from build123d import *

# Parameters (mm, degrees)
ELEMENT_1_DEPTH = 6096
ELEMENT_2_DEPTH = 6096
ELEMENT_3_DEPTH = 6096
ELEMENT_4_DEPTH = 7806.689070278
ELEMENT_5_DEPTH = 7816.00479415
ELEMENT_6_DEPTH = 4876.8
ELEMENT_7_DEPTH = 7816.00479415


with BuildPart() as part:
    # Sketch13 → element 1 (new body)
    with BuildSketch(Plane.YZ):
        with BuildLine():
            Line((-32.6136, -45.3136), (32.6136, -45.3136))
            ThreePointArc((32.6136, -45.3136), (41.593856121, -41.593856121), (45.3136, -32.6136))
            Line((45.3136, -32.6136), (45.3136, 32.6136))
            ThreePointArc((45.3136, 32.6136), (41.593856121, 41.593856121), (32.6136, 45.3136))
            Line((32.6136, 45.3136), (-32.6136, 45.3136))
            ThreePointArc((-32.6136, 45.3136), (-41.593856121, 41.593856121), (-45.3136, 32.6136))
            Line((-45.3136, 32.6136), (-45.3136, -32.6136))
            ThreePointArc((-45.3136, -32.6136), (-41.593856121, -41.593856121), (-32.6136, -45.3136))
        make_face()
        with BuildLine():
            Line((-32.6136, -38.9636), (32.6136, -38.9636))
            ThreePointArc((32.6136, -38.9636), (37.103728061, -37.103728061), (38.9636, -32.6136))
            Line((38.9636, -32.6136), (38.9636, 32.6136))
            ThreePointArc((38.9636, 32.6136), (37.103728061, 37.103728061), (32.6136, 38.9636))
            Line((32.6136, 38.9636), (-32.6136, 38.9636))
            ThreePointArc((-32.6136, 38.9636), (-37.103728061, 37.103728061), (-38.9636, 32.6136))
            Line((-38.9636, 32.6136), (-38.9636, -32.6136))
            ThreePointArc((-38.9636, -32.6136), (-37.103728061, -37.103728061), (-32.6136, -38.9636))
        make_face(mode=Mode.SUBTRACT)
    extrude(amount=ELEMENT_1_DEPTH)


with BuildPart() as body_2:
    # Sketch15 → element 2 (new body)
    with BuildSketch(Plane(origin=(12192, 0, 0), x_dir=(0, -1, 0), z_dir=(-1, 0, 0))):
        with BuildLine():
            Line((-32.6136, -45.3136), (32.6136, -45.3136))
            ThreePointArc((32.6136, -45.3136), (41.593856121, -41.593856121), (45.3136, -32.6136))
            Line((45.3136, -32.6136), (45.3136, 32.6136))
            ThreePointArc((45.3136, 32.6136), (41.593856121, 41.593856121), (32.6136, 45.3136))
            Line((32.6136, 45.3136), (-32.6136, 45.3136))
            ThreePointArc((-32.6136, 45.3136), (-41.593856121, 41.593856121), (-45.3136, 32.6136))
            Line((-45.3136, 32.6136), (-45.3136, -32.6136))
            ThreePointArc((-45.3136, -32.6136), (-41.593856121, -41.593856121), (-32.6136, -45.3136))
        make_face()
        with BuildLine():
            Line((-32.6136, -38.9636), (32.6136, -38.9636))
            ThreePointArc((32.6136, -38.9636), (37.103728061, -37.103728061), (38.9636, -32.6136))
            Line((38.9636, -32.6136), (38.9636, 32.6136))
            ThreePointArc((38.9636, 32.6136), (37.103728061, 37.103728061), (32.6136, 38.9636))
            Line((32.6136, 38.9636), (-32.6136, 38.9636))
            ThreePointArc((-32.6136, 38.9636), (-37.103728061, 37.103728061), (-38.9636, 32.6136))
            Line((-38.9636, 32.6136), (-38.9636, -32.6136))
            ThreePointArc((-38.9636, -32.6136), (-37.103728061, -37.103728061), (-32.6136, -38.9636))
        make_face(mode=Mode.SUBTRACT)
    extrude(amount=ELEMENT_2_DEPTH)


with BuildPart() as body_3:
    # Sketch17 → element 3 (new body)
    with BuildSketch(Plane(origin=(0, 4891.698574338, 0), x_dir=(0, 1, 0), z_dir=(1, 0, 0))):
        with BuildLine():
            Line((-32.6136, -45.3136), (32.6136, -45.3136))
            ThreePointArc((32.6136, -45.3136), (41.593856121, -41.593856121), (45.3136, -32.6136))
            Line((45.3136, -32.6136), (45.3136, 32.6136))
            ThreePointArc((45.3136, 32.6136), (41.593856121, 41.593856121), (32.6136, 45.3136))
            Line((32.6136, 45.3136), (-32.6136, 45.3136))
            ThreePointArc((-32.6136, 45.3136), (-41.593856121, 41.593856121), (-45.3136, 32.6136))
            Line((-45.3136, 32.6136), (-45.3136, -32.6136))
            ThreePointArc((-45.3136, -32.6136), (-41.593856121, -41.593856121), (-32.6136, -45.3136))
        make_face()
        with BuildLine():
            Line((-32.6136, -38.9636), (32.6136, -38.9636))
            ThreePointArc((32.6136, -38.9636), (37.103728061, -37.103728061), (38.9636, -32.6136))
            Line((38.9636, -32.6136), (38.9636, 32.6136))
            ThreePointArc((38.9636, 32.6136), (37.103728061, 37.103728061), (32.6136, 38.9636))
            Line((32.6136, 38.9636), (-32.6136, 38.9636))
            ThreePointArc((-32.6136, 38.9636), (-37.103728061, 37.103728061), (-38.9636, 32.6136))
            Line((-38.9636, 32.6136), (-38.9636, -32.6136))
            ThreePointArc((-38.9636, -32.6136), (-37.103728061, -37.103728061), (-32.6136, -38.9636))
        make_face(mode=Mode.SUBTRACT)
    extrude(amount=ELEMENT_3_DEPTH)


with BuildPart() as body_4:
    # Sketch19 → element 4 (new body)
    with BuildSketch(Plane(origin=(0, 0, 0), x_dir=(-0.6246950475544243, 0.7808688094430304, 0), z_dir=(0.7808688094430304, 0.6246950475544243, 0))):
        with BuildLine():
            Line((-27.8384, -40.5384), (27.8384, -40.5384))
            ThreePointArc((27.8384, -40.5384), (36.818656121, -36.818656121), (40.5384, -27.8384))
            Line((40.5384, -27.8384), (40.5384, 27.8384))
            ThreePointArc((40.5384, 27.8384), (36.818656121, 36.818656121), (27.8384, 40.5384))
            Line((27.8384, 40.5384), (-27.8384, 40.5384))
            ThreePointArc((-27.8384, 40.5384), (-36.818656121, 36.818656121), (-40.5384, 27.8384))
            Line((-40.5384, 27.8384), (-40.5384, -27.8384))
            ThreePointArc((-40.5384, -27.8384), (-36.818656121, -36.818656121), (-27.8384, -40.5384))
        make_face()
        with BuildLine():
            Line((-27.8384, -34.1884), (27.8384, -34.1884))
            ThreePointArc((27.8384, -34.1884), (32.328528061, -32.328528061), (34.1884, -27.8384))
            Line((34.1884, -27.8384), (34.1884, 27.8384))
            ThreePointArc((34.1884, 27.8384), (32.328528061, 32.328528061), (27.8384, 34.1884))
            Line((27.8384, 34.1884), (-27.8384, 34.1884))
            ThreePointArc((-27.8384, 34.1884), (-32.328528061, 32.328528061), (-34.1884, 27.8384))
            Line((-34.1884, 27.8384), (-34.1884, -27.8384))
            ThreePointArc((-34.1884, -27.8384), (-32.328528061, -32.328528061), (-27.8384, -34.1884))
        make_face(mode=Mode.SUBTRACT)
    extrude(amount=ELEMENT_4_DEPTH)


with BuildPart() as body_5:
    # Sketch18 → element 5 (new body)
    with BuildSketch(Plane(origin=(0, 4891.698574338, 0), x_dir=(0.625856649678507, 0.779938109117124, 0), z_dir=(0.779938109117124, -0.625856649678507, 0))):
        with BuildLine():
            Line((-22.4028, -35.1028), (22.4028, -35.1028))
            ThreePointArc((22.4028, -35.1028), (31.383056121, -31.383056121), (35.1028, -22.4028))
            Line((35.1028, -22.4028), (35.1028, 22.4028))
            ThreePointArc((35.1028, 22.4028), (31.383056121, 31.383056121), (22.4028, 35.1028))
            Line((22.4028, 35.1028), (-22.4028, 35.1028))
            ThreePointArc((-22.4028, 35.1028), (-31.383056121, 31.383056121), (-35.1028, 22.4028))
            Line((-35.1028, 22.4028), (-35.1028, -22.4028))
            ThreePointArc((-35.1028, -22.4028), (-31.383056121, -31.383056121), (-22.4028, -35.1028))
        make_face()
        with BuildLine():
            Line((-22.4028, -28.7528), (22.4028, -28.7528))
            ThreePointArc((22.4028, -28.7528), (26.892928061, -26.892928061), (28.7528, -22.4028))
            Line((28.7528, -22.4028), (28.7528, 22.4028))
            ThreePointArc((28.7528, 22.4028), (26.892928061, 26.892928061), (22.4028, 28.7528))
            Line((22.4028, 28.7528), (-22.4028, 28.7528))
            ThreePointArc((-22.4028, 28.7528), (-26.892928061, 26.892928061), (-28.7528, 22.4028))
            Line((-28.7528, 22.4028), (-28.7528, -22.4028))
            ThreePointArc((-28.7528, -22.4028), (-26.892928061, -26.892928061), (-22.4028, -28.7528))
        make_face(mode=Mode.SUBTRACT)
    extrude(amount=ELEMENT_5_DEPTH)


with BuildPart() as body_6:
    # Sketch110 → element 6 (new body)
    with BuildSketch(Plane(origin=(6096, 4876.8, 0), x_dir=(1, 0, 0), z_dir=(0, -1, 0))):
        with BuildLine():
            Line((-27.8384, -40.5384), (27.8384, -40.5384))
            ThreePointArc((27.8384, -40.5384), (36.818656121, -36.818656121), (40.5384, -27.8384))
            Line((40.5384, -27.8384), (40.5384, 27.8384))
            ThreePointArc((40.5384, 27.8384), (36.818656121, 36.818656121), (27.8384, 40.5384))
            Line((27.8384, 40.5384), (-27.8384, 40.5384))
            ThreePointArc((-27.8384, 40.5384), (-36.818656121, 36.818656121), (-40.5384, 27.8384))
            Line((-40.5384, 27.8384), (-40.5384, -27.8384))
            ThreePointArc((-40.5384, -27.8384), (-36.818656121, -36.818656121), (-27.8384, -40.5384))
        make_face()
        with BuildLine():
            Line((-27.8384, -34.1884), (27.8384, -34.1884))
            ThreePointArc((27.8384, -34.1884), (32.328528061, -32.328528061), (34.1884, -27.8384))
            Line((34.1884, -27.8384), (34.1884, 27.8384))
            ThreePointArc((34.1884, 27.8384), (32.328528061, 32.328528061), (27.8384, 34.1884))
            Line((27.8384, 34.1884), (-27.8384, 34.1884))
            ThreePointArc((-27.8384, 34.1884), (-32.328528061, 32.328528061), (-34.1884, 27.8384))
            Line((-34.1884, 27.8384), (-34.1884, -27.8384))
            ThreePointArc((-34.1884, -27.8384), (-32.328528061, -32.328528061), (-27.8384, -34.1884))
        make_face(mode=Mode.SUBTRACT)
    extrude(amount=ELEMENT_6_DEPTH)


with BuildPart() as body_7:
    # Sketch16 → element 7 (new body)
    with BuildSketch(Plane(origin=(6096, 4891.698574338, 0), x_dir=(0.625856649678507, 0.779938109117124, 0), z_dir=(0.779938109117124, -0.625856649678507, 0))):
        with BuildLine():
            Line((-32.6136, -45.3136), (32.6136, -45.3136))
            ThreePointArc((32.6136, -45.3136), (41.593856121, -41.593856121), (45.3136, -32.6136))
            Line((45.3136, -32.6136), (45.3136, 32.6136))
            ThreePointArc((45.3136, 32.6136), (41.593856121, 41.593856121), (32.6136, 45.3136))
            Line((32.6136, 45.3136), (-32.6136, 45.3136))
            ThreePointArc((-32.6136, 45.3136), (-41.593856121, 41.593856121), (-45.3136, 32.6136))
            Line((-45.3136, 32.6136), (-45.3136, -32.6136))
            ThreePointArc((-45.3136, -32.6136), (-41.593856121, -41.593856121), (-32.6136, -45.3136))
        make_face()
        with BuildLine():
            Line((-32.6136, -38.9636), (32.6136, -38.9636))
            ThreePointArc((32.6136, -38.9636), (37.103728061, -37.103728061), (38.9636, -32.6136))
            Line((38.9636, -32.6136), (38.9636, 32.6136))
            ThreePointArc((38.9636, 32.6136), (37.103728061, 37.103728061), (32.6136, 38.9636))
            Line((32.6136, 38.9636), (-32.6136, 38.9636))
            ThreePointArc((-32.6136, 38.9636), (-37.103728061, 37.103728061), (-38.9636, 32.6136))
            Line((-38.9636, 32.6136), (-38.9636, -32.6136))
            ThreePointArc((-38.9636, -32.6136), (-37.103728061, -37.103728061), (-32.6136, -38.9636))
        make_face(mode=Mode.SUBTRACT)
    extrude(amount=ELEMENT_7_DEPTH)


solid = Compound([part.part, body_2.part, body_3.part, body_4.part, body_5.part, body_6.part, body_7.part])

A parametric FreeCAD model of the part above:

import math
import FreeCAD as App
import Part
import Sketcher

V = App.Vector
Q = App.Units.Quantity

doc = App.newDocument("Part")
body = doc.addObject("PartDesign::Body", "Body")

sketch1 = body.newObject("Sketcher::SketchObject", "Sketch")
sketch1.AttachmentSupport = (doc.getObject("YZ_Plane"), [""])
sketch1.MapMode = "FlatFace"
sketch1.addGeometry(Part.LineSegment(V(-33, -45, 0), V(33, -45, 0)), False)
sketch1.addGeometry(Part.ArcOfCircle(Part.Circle(V(33, -33, 0), V(0, 0, 1), 13), math.radians(-90), math.radians(0)), False)
sketch1.addGeometry(Part.LineSegment(V(45, -33, 0), V(45, 33, 0)), False)
sketch1.addGeometry(Part.ArcOfCircle(Part.Circle(V(33, 33, 0), V(0, 0, 1), 13), math.radians(0), math.radians(90)), False)
sketch1.addGeometry(Part.LineSegment(V(33, 45, 0), V(-33, 45, 0)), False)
sketch1.addGeometry(Part.ArcOfCircle(Part.Circle(V(-33, 33, 0), V(0, 0, 1), 13), math.radians(90), math.radians(180)), False)
sketch1.addGeometry(Part.LineSegment(V(-45, 33, 0), V(-45, -33, 0)), False)
sketch1.addGeometry(Part.ArcOfCircle(Part.Circle(V(-33, -33, 0), V(0, 0, 1), 13), math.radians(180), math.radians(270)), False)
sketch1.addGeometry(Part.LineSegment(V(33, -39, 0), V(-33, -39, 0)), False)
sketch1.addGeometry(Part.ArcOfCircle(Part.Circle(V(-33, -33, 0), V(0, 0, 1), 6), math.radians(180), math.radians(270)), False)
sketch1.addGeometry(Part.LineSegment(V(-39, -33, 0), V(-39, 33, 0)), False)
sketch1.addGeometry(Part.ArcOfCircle(Part.Circle(V(-33, 33, 0), V(0, 0, 1), 6), math.radians(90), math.radians(180)), False)
sketch1.addGeometry(Part.LineSegment(V(-33, 39, 0), V(33, 39, 0)), False)
sketch1.addGeometry(Part.ArcOfCircle(Part.Circle(V(33, 33, 0), V(0, 0, 1), 6), math.radians(0), math.radians(90)), False)
sketch1.addGeometry(Part.LineSegment(V(39, 33, 0), V(39, -33, 0)), False)
sketch1.addGeometry(Part.ArcOfCircle(Part.Circle(V(33, -33, 0), V(0, 0, 1), 6), math.radians(-90), math.radians(0)), False)
sketch1.addConstraint(Sketcher.Constraint("Tangent", 0, 2, 1, 1))
sketch1.addConstraint(Sketcher.Constraint("Tangent", 1, 2, 2, 1))
sketch1.addConstraint(Sketcher.Constraint("Tangent", 2, 2, 3, 1))
sketch1.addConstraint(Sketcher.Constraint("Tangent", 3, 2, 4, 1))
sketch1.addConstraint(Sketcher.Constraint("Tangent", 4, 2, 5, 1))
sketch1.addConstraint(Sketcher.Constraint("Tangent", 5, 2, 6, 1))
sketch1.addConstraint(Sketcher.Constraint("Tangent", 6, 2, 7, 1))
sketch1.addConstraint(Sketcher.Constraint("Tangent", 7, 2, 0, 1))
sketch1.addConstraint(Sketcher.Constraint("Tangent", 8, 2, 9, 2))
sketch1.addConstraint(Sketcher.Constraint("Tangent", 9, 1, 10, 1))
sketch1.addConstraint(Sketcher.Constraint("Tangent", 10, 2, 11, 2))
sketch1.addConstraint(Sketcher.Constraint("Tangent", 11, 1, 12, 1))
sketch1.addConstraint(Sketcher.Constraint("Tangent", 12, 2, 13, 2))
sketch1.addConstraint(Sketcher.Constraint("Tangent", 13, 1, 14, 1))
sketch1.addConstraint(Sketcher.Constraint("Tangent", 14, 2, 15, 2))
sketch1.addConstraint(Sketcher.Constraint("Tangent", 15, 1, 8, 1))
sketch1.addConstraint(Sketcher.Constraint("Horizontal", 0))
sketch1.addConstraint(Sketcher.Constraint("Vertical", 2))
sketch1.addConstraint(Sketcher.Constraint("Horizontal", 4))
sketch1.addConstraint(Sketcher.Constraint("Vertical", 6))
sketch1.addConstraint(Sketcher.Constraint("Horizontal", 8))
sketch1.addConstraint(Sketcher.Constraint("Vertical", 10))
sketch1.addConstraint(Sketcher.Constraint("Horizontal", 12))
sketch1.addConstraint(Sketcher.Constraint("Vertical", 14))
sketch1.addConstraint(Sketcher.Constraint("Coincident", 9, 3, 7, 3))
sketch1.addConstraint(Sketcher.Constraint("Coincident", 11, 3, 5, 3))
sketch1.addConstraint(Sketcher.Constraint("Coincident", 13, 3, 3, 3))
sketch1.addConstraint(Sketcher.Constraint("Equal", 1, 3))
sketch1.addConstraint(Sketcher.Constraint("Equal", 3, 5))
sketch1.addConstraint(Sketcher.Constraint("Equal", 5, 7))
sketch1.addConstraint(Sketcher.Constraint("Equal", 13, 15))
sketch1.addConstraint(Sketcher.Constraint("Symmetric", 1, 3, 5, 3, -1, 1))
sketch1.addConstraint(Sketcher.Constraint("Equal", 12, 2))
sketch1.addConstraint(Sketcher.Constraint("Radius", 1, Q("0.5 in")))
sketch1.addConstraint(Sketcher.Constraint("Radius", 9, Q("0.25 in")))
sketch1.addConstraint(Sketcher.Constraint("DistanceX", 0, 1, 0, 2, Q("2.568 in")))
pad1 = body.newObject("PartDesign::Pad", "Pad")
pad1.Profile = sketch1
pad1.Length = Q("240 in")
body2 = doc.addObject("PartDesign::Body", "Body001")

sketch2 = body2.newObject("Sketcher::SketchObject", "Sketch001")
sketch2.AttachmentSupport = (doc.getObject("YZ_Plane001"), [""])
sketch2.MapMode = "FlatFace"
sketch2.AttachmentOffset = App.Placement(V(0, 0, 480 * 25.4), App.Rotation())
sketch2.addGeometry(Part.LineSegment(V(33, -45, 0), V(-33, -45, 0)), False)
sketch2.addGeometry(Part.ArcOfCircle(Part.Circle(V(-33, -33, 0), V(0, 0, 1), 13), math.radians(180), math.radians(270)), False)
sketch2.addGeometry(Part.LineSegment(V(-45, -33, 0), V(-45, 33, 0)), False)
sketch2.addGeometry(Part.ArcOfCircle(Part.Circle(V(-33, 33, 0), V(0, 0, 1), 13), math.radians(90), math.radians(180)), False)
sketch2.addGeometry(Part.LineSegment(V(-33, 45, 0), V(33, 45, 0)), False)
sketch2.addGeometry(Part.ArcOfCircle(Part.Circle(V(33, 33, 0), V(0, 0, 1), 13), math.radians(0), math.radians(90)), False)
sketch2.addGeometry(Part.LineSegment(V(45, 33, 0), V(45, -33, 0)), False)
sketch2.addGeometry(Part.ArcOfCircle(Part.Circle(V(33, -33, 0), V(0, 0, 1), 13), math.radians(-90), math.radians(0)), False)
sketch2.addGeometry(Part.LineSegment(V(-33, -39, 0), V(33, -39, 0)), False)
sketch2.addGeometry(Part.ArcOfCircle(Part.Circle(V(33, -33, 0), V(0, 0, 1), 6), math.radians(-90), math.radians(0)), False)
sketch2.addGeometry(Part.LineSegment(V(39, -33, 0), V(39, 33, 0)), False)
sketch2.addGeometry(Part.ArcOfCircle(Part.Circle(V(33, 33, 0), V(0, 0, 1), 6), math.radians(0), math.radians(90)), False)
sketch2.addGeometry(Part.LineSegment(V(33, 39, 0), V(-33, 39, 0)), False)
sketch2.addGeometry(Part.ArcOfCircle(Part.Circle(V(-33, 33, 0), V(0, 0, 1), 6), math.radians(90), math.radians(180)), False)
sketch2.addGeometry(Part.LineSegment(V(-39, 33, 0), V(-39, -33, 0)), False)
sketch2.addGeometry(Part.ArcOfCircle(Part.Circle(V(-33, -33, 0), V(0, 0, 1), 6), math.radians(180), math.radians(270)), False)
sketch2.addConstraint(Sketcher.Constraint("Tangent", 0, 2, 1, 2))
sketch2.addConstraint(Sketcher.Constraint("Tangent", 1, 1, 2, 1))
sketch2.addConstraint(Sketcher.Constraint("Tangent", 2, 2, 3, 2))
sketch2.addConstraint(Sketcher.Constraint("Tangent", 3, 1, 4, 1))
sketch2.addConstraint(Sketcher.Constraint("Tangent", 4, 2, 5, 2))
sketch2.addConstraint(Sketcher.Constraint("Tangent", 5, 1, 6, 1))
sketch2.addConstraint(Sketcher.Constraint("Tangent", 6, 2, 7, 2))
sketch2.addConstraint(Sketcher.Constraint("Tangent", 7, 1, 0, 1))
sketch2.addConstraint(Sketcher.Constraint("Tangent", 8, 2, 9, 1))
sketch2.addConstraint(Sketcher.Constraint("Tangent", 9, 2, 10, 1))
sketch2.addConstraint(Sketcher.Constraint("Tangent", 10, 2, 11, 1))
sketch2.addConstraint(Sketcher.Constraint("Tangent", 11, 2, 12, 1))
sketch2.addConstraint(Sketcher.Constraint("Tangent", 12, 2, 13, 1))
sketch2.addConstraint(Sketcher.Constraint("Tangent", 13, 2, 14, 1))
sketch2.addConstraint(Sketcher.Constraint("Tangent", 14, 2, 15, 1))
sketch2.addConstraint(Sketcher.Constraint("Tangent", 15, 2, 8, 1))
sketch2.addConstraint(Sketcher.Constraint("Horizontal", 0))
sketch2.addConstraint(Sketcher.Constraint("Vertical", 2))
sketch2.addConstraint(Sketcher.Constraint("Horizontal", 4))
sketch2.addConstraint(Sketcher.Constraint("Vertical", 6))
sketch2.addConstraint(Sketcher.Constraint("Horizontal", 8))
sketch2.addConstraint(Sketcher.Constraint("Vertical", 10))
sketch2.addConstraint(Sketcher.Constraint("Horizontal", 12))
sketch2.addConstraint(Sketcher.Constraint("Vertical", 14))
sketch2.addConstraint(Sketcher.Constraint("Coincident", 9, 3, 7, 3))
sketch2.addConstraint(Sketcher.Constraint("Coincident", 11, 3, 5, 3))
sketch2.addConstraint(Sketcher.Constraint("Coincident", 13, 3, 3, 3))
sketch2.addConstraint(Sketcher.Constraint("Equal", 1, 3))
sketch2.addConstraint(Sketcher.Constraint("Equal", 3, 5))
sketch2.addConstraint(Sketcher.Constraint("Equal", 5, 7))
sketch2.addConstraint(Sketcher.Constraint("Equal", 13, 15))
sketch2.addConstraint(Sketcher.Constraint("Symmetric", 1, 3, 5, 3, -1, 1))
sketch2.addConstraint(Sketcher.Constraint("Equal", 12, 2))
sketch2.addConstraint(Sketcher.Constraint("Radius", 1, Q("0.5 in")))
sketch2.addConstraint(Sketcher.Constraint("Radius", 9, Q("0.25 in")))
sketch2.addConstraint(Sketcher.Constraint("DistanceX", 0, 2, 0, 1, Q("2.568 in")))
pad2 = body2.newObject("PartDesign::Pad", "Pad001")
pad2.Profile = sketch2
pad2.Length = Q("240 in")
pad2.Reversed = True
body3 = doc.addObject("PartDesign::Body", "Body002")

sketch3 = body3.newObject("Sketcher::SketchObject", "Sketch002")
sketch3.AttachmentSupport = (doc.getObject("YZ_Plane002"), [""])
sketch3.MapMode = "FlatFace"
sketch3.addGeometry(Part.LineSegment(V(4859, -45, 0), V(4924, -45, 0)), False)
sketch3.addGeometry(Part.ArcOfCircle(Part.Circle(V(4924, -33, 0), V(0, 0, 1), 13), math.radians(-90), math.radians(0)), False)
sketch3.addGeometry(Part.LineSegment(V(4937, -33, 0), V(4937, 33, 0)), False)
sketch3.addGeometry(Part.ArcOfCircle(Part.Circle(V(4924, 33, 0), V(0, 0, 1), 13), math.radians(0), math.radians(90)), False)
sketch3.addGeometry(Part.LineSegment(V(4924, 45, 0), V(4859, 45, 0)), False)
sketch3.addGeometry(Part.ArcOfCircle(Part.Circle(V(4859, 33, 0), V(0, 0, 1), 13), math.radians(90), math.radians(180)), False)
sketch3.addGeometry(Part.LineSegment(V(4846, 33, 0), V(4846, -33, 0)), False)
sketch3.addGeometry(Part.ArcOfCircle(Part.Circle(V(4859, -33, 0), V(0, 0, 1), 13), math.radians(180), math.radians(270)), False)
sketch3.addGeometry(Part.LineSegment(V(4924, -39, 0), V(4859, -39, 0)), False)
sketch3.addGeometry(Part.ArcOfCircle(Part.Circle(V(4859, -33, 0), V(0, 0, 1), 6), math.radians(180), math.radians(270)), False)
sketch3.addGeometry(Part.LineSegment(V(4853, -33, 0), V(4853, 33, 0)), False)
sketch3.addGeometry(Part.ArcOfCircle(Part.Circle(V(4859, 33, 0), V(0, 0, 1), 6), math.radians(90), math.radians(180)), False)
sketch3.addGeometry(Part.LineSegment(V(4859, 39, 0), V(4924, 39, 0)), False)
sketch3.addGeometry(Part.ArcOfCircle(Part.Circle(V(4924, 33, 0), V(0, 0, 1), 6), math.radians(0), math.radians(90)), False)
sketch3.addGeometry(Part.LineSegment(V(4931, 33, 0), V(4931, -33, 0)), False)
sketch3.addGeometry(Part.ArcOfCircle(Part.Circle(V(4924, -33, 0), V(0, 0, 1), 6), math.radians(-90), math.radians(0)), False)
sketch3.addConstraint(Sketcher.Constraint("Tangent", 0, 2, 1, 1))
sketch3.addConstraint(Sketcher.Constraint("Tangent", 1, 2, 2, 1))
sketch3.addConstraint(Sketcher.Constraint("Tangent", 2, 2, 3, 1))
sketch3.addConstraint(Sketcher.Constraint("Tangent", 3, 2, 4, 1))
sketch3.addConstraint(Sketcher.Constraint("Tangent", 4, 2, 5, 1))
sketch3.addConstraint(Sketcher.Constraint("Tangent", 5, 2, 6, 1))
sketch3.addConstraint(Sketcher.Constraint("Tangent", 6, 2, 7, 1))
sketch3.addConstraint(Sketcher.Constraint("Tangent", 7, 2, 0, 1))
sketch3.addConstraint(Sketcher.Constraint("Tangent", 8, 2, 9, 2))
sketch3.addConstraint(Sketcher.Constraint("Tangent", 9, 1, 10, 1))
sketch3.addConstraint(Sketcher.Constraint("Tangent", 10, 2, 11, 2))
sketch3.addConstraint(Sketcher.Constraint("Tangent", 11, 1, 12, 1))
sketch3.addConstraint(Sketcher.Constraint("Tangent", 12, 2, 13, 2))
sketch3.addConstraint(Sketcher.Constraint("Tangent", 13, 1, 14, 1))
sketch3.addConstraint(Sketcher.Constraint("Tangent", 14, 2, 15, 2))
sketch3.addConstraint(Sketcher.Constraint("Tangent", 15, 1, 8, 1))
sketch3.addConstraint(Sketcher.Constraint("Horizontal", 0))
sketch3.addConstraint(Sketcher.Constraint("Vertical", 2))
sketch3.addConstraint(Sketcher.Constraint("Horizontal", 4))
sketch3.addConstraint(Sketcher.Constraint("Vertical", 6))
sketch3.addConstraint(Sketcher.Constraint("Horizontal", 8))
sketch3.addConstraint(Sketcher.Constraint("Vertical", 10))
sketch3.addConstraint(Sketcher.Constraint("Horizontal", 12))
sketch3.addConstraint(Sketcher.Constraint("Vertical", 14))
sketch3.addConstraint(Sketcher.Constraint("Coincident", 9, 3, 7, 3))
sketch3.addConstraint(Sketcher.Constraint("Coincident", 11, 3, 5, 3))
sketch3.addConstraint(Sketcher.Constraint("Coincident", 13, 3, 3, 3))
sketch3.addConstraint(Sketcher.Constraint("Equal", 1, 3))
sketch3.addConstraint(Sketcher.Constraint("Equal", 3, 5))
sketch3.addConstraint(Sketcher.Constraint("Equal", 5, 7))
sketch3.addConstraint(Sketcher.Constraint("Equal", 13, 15))
sketch3.addConstraint(Sketcher.Constraint("Equal", 12, 2))
sketch3.addConstraint(Sketcher.Constraint("Radius", 1, Q("0.5 in")))
sketch3.addConstraint(Sketcher.Constraint("Radius", 9, Q("0.25 in")))
sketch3.addConstraint(Sketcher.Constraint("DistanceX", 0, 1, 0, 2, Q("2.568 in")))
sketch3.addConstraint(Sketcher.Constraint("DistanceY", 1, 3, -1, 1, Q("1.284 in")))
sketch3.addConstraint(Sketcher.Constraint("DistanceX", -1, 1, 1, 3, 4924.312174))
pad3 = body3.newObject("PartDesign::Pad", "Pad002")
pad3.Profile = sketch3
pad3.Length = Q("240 in")
body4 = doc.addObject("PartDesign::Body", "Body003")

sketch4 = body4.newObject("Sketcher::SketchObject", "Sketch003")
sketch4.Placement = App.Placement(V(0, 0, 0), App.Rotation(V(-0.624695048, 0.780868809, 0), V(0, 0, 1), V(0.780868809, 0.624695048, 0), "ZXY"))
sketch4.addGeometry(Part.LineSegment(V(-28, -41, 0), V(28, -41, 0)), False)
sketch4.addGeometry(Part.ArcOfCircle(Part.Circle(V(28, -28, 0), V(0, 0, 1), 13), math.radians(-90), math.radians(0)), False)
sketch4.addGeometry(Part.LineSegment(V(41, -28, 0), V(41, 28, 0)), False)
sketch4.addGeometry(Part.ArcOfCircle(Part.Circle(V(28, 28, 0), V(0, 0, 1), 13), math.radians(0), math.radians(90)), False)
sketch4.addGeometry(Part.LineSegment(V(28, 41, 0), V(-28, 41, 0)), False)
sketch4.addGeometry(Part.ArcOfCircle(Part.Circle(V(-28, 28, 0), V(0, 0, 1), 13), math.radians(90), math.radians(180)), False)
sketch4.addGeometry(Part.LineSegment(V(-41, 28, 0), V(-41, -28, 0)), False)
sketch4.addGeometry(Part.ArcOfCircle(Part.Circle(V(-28, -28, 0), V(0, 0, 1), 13), math.radians(180), math.radians(270)), False)
sketch4.addGeometry(Part.LineSegment(V(28, -34, 0), V(-28, -34, 0)), False)
sketch4.addGeometry(Part.ArcOfCircle(Part.Circle(V(-28, -28, 0), V(0, 0, 1), 6), math.radians(180), math.radians(270)), False)
sketch4.addGeometry(Part.LineSegment(V(-34, -28, 0), V(-34, 28, 0)), False)
sketch4.addGeometry(Part.ArcOfCircle(Part.Circle(V(-28, 28, 0), V(0, 0, 1), 6), math.radians(90), math.radians(180)), False)
sketch4.addGeometry(Part.LineSegment(V(-28, 34, 0), V(28, 34, 0)), False)
sketch4.addGeometry(Part.ArcOfCircle(Part.Circle(V(28, 28, 0), V(0, 0, 1), 6), math.radians(0), math.radians(90)), False)
sketch4.addGeometry(Part.LineSegment(V(34, 28, 0), V(34, -28, 0)), False)
sketch4.addGeometry(Part.ArcOfCircle(Part.Circle(V(28, -28, 0), V(0, 0, 1), 6), math.radians(-90), math.radians(0)), False)
sketch4.addConstraint(Sketcher.Constraint("Tangent", 0, 2, 1, 1))
sketch4.addConstraint(Sketcher.Constraint("Tangent", 1, 2, 2, 1))
sketch4.addConstraint(Sketcher.Constraint("Tangent", 2, 2, 3, 1))
sketch4.addConstraint(Sketcher.Constraint("Tangent", 3, 2, 4, 1))
sketch4.addConstraint(Sketcher.Constraint("Tangent", 4, 2, 5, 1))
sketch4.addConstraint(Sketcher.Constraint("Tangent", 5, 2, 6, 1))
sketch4.addConstraint(Sketcher.Constraint("Tangent", 6, 2, 7, 1))
sketch4.addConstraint(Sketcher.Constraint("Tangent", 7, 2, 0, 1))
sketch4.addConstraint(Sketcher.Constraint("Tangent", 8, 2, 9, 2))
sketch4.addConstraint(Sketcher.Constraint("Tangent", 9, 1, 10, 1))
sketch4.addConstraint(Sketcher.Constraint("Tangent", 10, 2, 11, 2))
sketch4.addConstraint(Sketcher.Constraint("Tangent", 11, 1, 12, 1))
sketch4.addConstraint(Sketcher.Constraint("Tangent", 12, 2, 13, 2))
sketch4.addConstraint(Sketcher.Constraint("Tangent", 13, 1, 14, 1))
sketch4.addConstraint(Sketcher.Constraint("Tangent", 14, 2, 15, 2))
sketch4.addConstraint(Sketcher.Constraint("Tangent", 15, 1, 8, 1))
sketch4.addConstraint(Sketcher.Constraint("Horizontal", 0))
sketch4.addConstraint(Sketcher.Constraint("Vertical", 2))
sketch4.addConstraint(Sketcher.Constraint("Horizontal", 4))
sketch4.addConstraint(Sketcher.Constraint("Vertical", 6))
sketch4.addConstraint(Sketcher.Constraint("Horizontal", 8))
sketch4.addConstraint(Sketcher.Constraint("Vertical", 10))
sketch4.addConstraint(Sketcher.Constraint("Horizontal", 12))
sketch4.addConstraint(Sketcher.Constraint("Vertical", 14))
sketch4.addConstraint(Sketcher.Constraint("Coincident", 9, 3, 7, 3))
sketch4.addConstraint(Sketcher.Constraint("Coincident", 11, 3, 5, 3))
sketch4.addConstraint(Sketcher.Constraint("Coincident", 13, 3, 3, 3))
sketch4.addConstraint(Sketcher.Constraint("Equal", 1, 3))
sketch4.addConstraint(Sketcher.Constraint("Equal", 3, 5))
sketch4.addConstraint(Sketcher.Constraint("Equal", 5, 7))
sketch4.addConstraint(Sketcher.Constraint("Equal", 13, 15))
sketch4.addConstraint(Sketcher.Constraint("Symmetric", 1, 3, 5, 3, -1, 1))
sketch4.addConstraint(Sketcher.Constraint("Equal", 12, 2))
sketch4.addConstraint(Sketcher.Constraint("Radius", 1, Q("0.5 in")))
sketch4.addConstraint(Sketcher.Constraint("Radius", 9, Q("0.25 in")))
sketch4.addConstraint(Sketcher.Constraint("DistanceX", 0, 1, 0, 2, Q("2.192 in")))
pad4 = body4.newObject("PartDesign::Pad", "Pad003")
pad4.Profile = sketch4
pad4.Length = 7806.68907
body5 = doc.addObject("PartDesign::Body", "Body004")

sketch5 = body5.newObject("Sketcher::SketchObject", "Sketch004")
sketch5.Placement = App.Placement(V(0, 4891.698574, 0), App.Rotation(V(0.62585665, 0.779938109, 0), V(0, 0, 1), V(0.779938109, -0.62585665, 0), "ZXY"))
sketch5.addGeometry(Part.LineSegment(V(-22, -35, 0), V(22, -35, 0)), False)
sketch5.addGeometry(Part.ArcOfCircle(Part.Circle(V(22, -22, 0), V(0, 0, 1), 13), math.radians(-90), math.radians(0)), False)
sketch5.addGeometry(Part.LineSegment(V(35, -22, 0), V(35, 22, 0)), False)
sketch5.addGeometry(Part.ArcOfCircle(Part.Circle(V(22, 22, 0), V(0, 0, 1), 13), math.radians(0), math.radians(90)), False)
sketch5.addGeometry(Part.LineSegment(V(22, 35, 0), V(-22, 35, 0)), False)
sketch5.addGeometry(Part.ArcOfCircle(Part.Circle(V(-22, 22, 0), V(0, 0, 1), 13), math.radians(90), math.radians(180)), False)
sketch5.addGeometry(Part.LineSegment(V(-35, 22, 0), V(-35, -22, 0)), False)
sketch5.addGeometry(Part.ArcOfCircle(Part.Circle(V(-22, -22, 0), V(0, 0, 1), 13), math.radians(180), math.radians(270)), False)
sketch5.addGeometry(Part.LineSegment(V(22, -29, 0), V(-22, -29, 0)), False)
sketch5.addGeometry(Part.ArcOfCircle(Part.Circle(V(-22, -22, 0), V(0, 0, 1), 6), math.radians(180), math.radians(270)), False)
sketch5.addGeometry(Part.LineSegment(V(-29, -22, 0), V(-29, 22, 0)), False)
sketch5.addGeometry(Part.ArcOfCircle(Part.Circle(V(-22, 22, 0), V(0, 0, 1), 6), math.radians(90), math.radians(180)), False)
sketch5.addGeometry(Part.LineSegment(V(-22, 29, 0), V(22, 29, 0)), False)
sketch5.addGeometry(Part.ArcOfCircle(Part.Circle(V(22, 22, 0), V(0, 0, 1), 6), math.radians(0), math.radians(90)), False)
sketch5.addGeometry(Part.LineSegment(V(29, 22, 0), V(29, -22, 0)), False)
sketch5.addGeometry(Part.ArcOfCircle(Part.Circle(V(22, -22, 0), V(0, 0, 1), 6), math.radians(-90), math.radians(0)), False)
sketch5.addConstraint(Sketcher.Constraint("Tangent", 0, 2, 1, 1))
sketch5.addConstraint(Sketcher.Constraint("Tangent", 1, 2, 2, 1))
sketch5.addConstraint(Sketcher.Constraint("Tangent", 2, 2, 3, 1))
sketch5.addConstraint(Sketcher.Constraint("Tangent", 3, 2, 4, 1))
sketch5.addConstraint(Sketcher.Constraint("Tangent", 4, 2, 5, 1))
sketch5.addConstraint(Sketcher.Constraint("Tangent", 5, 2, 6, 1))
sketch5.addConstraint(Sketcher.Constraint("Tangent", 6, 2, 7, 1))
sketch5.addConstraint(Sketcher.Constraint("Tangent", 7, 2, 0, 1))
sketch5.addConstraint(Sketcher.Constraint("Tangent", 8, 2, 9, 2))
sketch5.addConstraint(Sketcher.Constraint("Tangent", 9, 1, 10, 1))
sketch5.addConstraint(Sketcher.Constraint("Tangent", 10, 2, 11, 2))
sketch5.addConstraint(Sketcher.Constraint("Tangent", 11, 1, 12, 1))
sketch5.addConstraint(Sketcher.Constraint("Tangent", 12, 2, 13, 2))
sketch5.addConstraint(Sketcher.Constraint("Tangent", 13, 1, 14, 1))
sketch5.addConstraint(Sketcher.Constraint("Tangent", 14, 2, 15, 2))
sketch5.addConstraint(Sketcher.Constraint("Tangent", 15, 1, 8, 1))
sketch5.addConstraint(Sketcher.Constraint("Horizontal", 0))
sketch5.addConstraint(Sketcher.Constraint("Vertical", 2))
sketch5.addConstraint(Sketcher.Constraint("Horizontal", 4))
sketch5.addConstraint(Sketcher.Constraint("Vertical", 6))
sketch5.addConstraint(Sketcher.Constraint("Horizontal", 8))
sketch5.addConstraint(Sketcher.Constraint("Vertical", 10))
sketch5.addConstraint(Sketcher.Constraint("Horizontal", 12))
sketch5.addConstraint(Sketcher.Constraint("Vertical", 14))
sketch5.addConstraint(Sketcher.Constraint("Coincident", 9, 3, 7, 3))
sketch5.addConstraint(Sketcher.Constraint("Coincident", 11, 3, 5, 3))
sketch5.addConstraint(Sketcher.Constraint("Coincident", 13, 3, 3, 3))
sketch5.addConstraint(Sketcher.Constraint("Equal", 1, 3))
sketch5.addConstraint(Sketcher.Constraint("Equal", 3, 5))
sketch5.addConstraint(Sketcher.Constraint("Equal", 5, 7))
sketch5.addConstraint(Sketcher.Constraint("Equal", 13, 15))
sketch5.addConstraint(Sketcher.Constraint("Symmetric", 1, 3, 5, 3, -1, 1))
sketch5.addConstraint(Sketcher.Constraint("Equal", 12, 2))
sketch5.addConstraint(Sketcher.Constraint("Radius", 1, Q("0.5 in")))
sketch5.addConstraint(Sketcher.Constraint("Radius", 9, Q("0.25 in")))
sketch5.addConstraint(Sketcher.Constraint("DistanceX", 0, 1, 0, 2, Q("1.764 in")))
pad5 = body5.newObject("PartDesign::Pad", "Pad004")
pad5.Profile = sketch5
pad5.Length = 7816.004794
body6 = doc.addObject("PartDesign::Body", "Body005")

sketch6 = body6.newObject("Sketcher::SketchObject", "Sketch005")
sketch6.AttachmentSupport = (doc.getObject("XZ_Plane005"), [""])
sketch6.MapMode = "FlatFace"
sketch6.AttachmentOffset = App.Placement(V(0, 0, -192 * 25.4), App.Rotation())
sketch6.addGeometry(Part.LineSegment(V(6068, -41, 0), V(6124, -41, 0)), False)
sketch6.addGeometry(Part.ArcOfCircle(Part.Circle(V(6124, -28, 0), V(0, 0, 1), 13), math.radians(-90), math.radians(0)), False)
sketch6.addGeometry(Part.LineSegment(V(6137, -28, 0), V(6137, 28, 0)), False)
sketch6.addGeometry(Part.ArcOfCircle(Part.Circle(V(6124, 28, 0), V(0, 0, 1), 13), math.radians(0), math.radians(90)), False)
sketch6.addGeometry(Part.LineSegment(V(6124, 41, 0), V(6068, 41, 0)), False)
sketch6.addGeometry(Part.ArcOfCircle(Part.Circle(V(6068, 28, 0), V(0, 0, 1), 13), math.radians(90), math.radians(180)), False)
sketch6.addGeometry(Part.LineSegment(V(6055, 28, 0), V(6055, -28, 0)), False)
sketch6.addGeometry(Part.ArcOfCircle(Part.Circle(V(6068, -28, 0), V(0, 0, 1), 13), math.radians(180), math.radians(270)), False)
sketch6.addGeometry(Part.LineSegment(V(6124, -34, 0), V(6068, -34, 0)), False)
sketch6.addGeometry(Part.ArcOfCircle(Part.Circle(V(6068, -28, 0), V(0, 0, 1), 6), math.radians(180), math.radians(270)), False)
sketch6.addGeometry(Part.LineSegment(V(6062, -28, 0), V(6062, 28, 0)), False)
sketch6.addGeometry(Part.ArcOfCircle(Part.Circle(V(6068, 28, 0), V(0, 0, 1), 6), math.radians(90), math.radians(180)), False)
sketch6.addGeometry(Part.LineSegment(V(6068, 34, 0), V(6124, 34, 0)), False)
sketch6.addGeometry(Part.ArcOfCircle(Part.Circle(V(6124, 28, 0), V(0, 0, 1), 6), math.radians(0), math.radians(90)), False)
sketch6.addGeometry(Part.LineSegment(V(6130, 28, 0), V(6130, -28, 0)), False)
sketch6.addGeometry(Part.ArcOfCircle(Part.Circle(V(6124, -28, 0), V(0, 0, 1), 6), math.radians(-90), math.radians(0)), False)
sketch6.addConstraint(Sketcher.Constraint("Tangent", 0, 2, 1, 1))
sketch6.addConstraint(Sketcher.Constraint("Tangent", 1, 2, 2, 1))
sketch6.addConstraint(Sketcher.Constraint("Tangent", 2, 2, 3, 1))
sketch6.addConstraint(Sketcher.Constraint("Tangent", 3, 2, 4, 1))
sketch6.addConstraint(Sketcher.Constraint("Tangent", 4, 2, 5, 1))
sketch6.addConstraint(Sketcher.Constraint("Tangent", 5, 2, 6, 1))
sketch6.addConstraint(Sketcher.Constraint("Tangent", 6, 2, 7, 1))
sketch6.addConstraint(Sketcher.Constraint("Tangent", 7, 2, 0, 1))
sketch6.addConstraint(Sketcher.Constraint("Tangent", 8, 2, 9, 2))
sketch6.addConstraint(Sketcher.Constraint("Tangent", 9, 1, 10, 1))
sketch6.addConstraint(Sketcher.Constraint("Tangent", 10, 2, 11, 2))
sketch6.addConstraint(Sketcher.Constraint("Tangent", 11, 1, 12, 1))
sketch6.addConstraint(Sketcher.Constraint("Tangent", 12, 2, 13, 2))
sketch6.addConstraint(Sketcher.Constraint("Tangent", 13, 1, 14, 1))
sketch6.addConstraint(Sketcher.Constraint("Tangent", 14, 2, 15, 2))
sketch6.addConstraint(Sketcher.Constraint("Tangent", 15, 1, 8, 1))
sketch6.addConstraint(Sketcher.Constraint("Horizontal", 0))
sketch6.addConstraint(Sketcher.Constraint("Vertical", 2))
sketch6.addConstraint(Sketcher.Constraint("Horizontal", 4))
sketch6.addConstraint(Sketcher.Constraint("Vertical", 6))
sketch6.addConstraint(Sketcher.Constraint("Horizontal", 8))
sketch6.addConstraint(Sketcher.Constraint("Vertical", 10))
sketch6.addConstraint(Sketcher.Constraint("Horizontal", 12))
sketch6.addConstraint(Sketcher.Constraint("Vertical", 14))
sketch6.addConstraint(Sketcher.Constraint("Coincident", 9, 3, 7, 3))
sketch6.addConstraint(Sketcher.Constraint("Coincident", 11, 3, 5, 3))
sketch6.addConstraint(Sketcher.Constraint("Coincident", 13, 3, 3, 3))
sketch6.addConstraint(Sketcher.Constraint("Equal", 1, 3))
sketch6.addConstraint(Sketcher.Constraint("Equal", 3, 5))
sketch6.addConstraint(Sketcher.Constraint("Equal", 5, 7))
sketch6.addConstraint(Sketcher.Constraint("Equal", 13, 15))
sketch6.addConstraint(Sketcher.Constraint("Equal", 12, 2))
sketch6.addConstraint(Sketcher.Constraint("Radius", 1, Q("0.5 in")))
sketch6.addConstraint(Sketcher.Constraint("Radius", 9, Q("0.25 in")))
sketch6.addConstraint(Sketcher.Constraint("DistanceX", 0, 1, 0, 2, Q("2.192 in")))
sketch6.addConstraint(Sketcher.Constraint("DistanceX", -1, 1, 1, 3, Q("241.096 in")))
sketch6.addConstraint(Sketcher.Constraint("DistanceY", 1, 3, -1, 1, Q("1.096 in")))
pad6 = body6.newObject("PartDesign::Pad", "Pad005")
pad6.Profile = sketch6
pad6.Length = Q("192 in")
body7 = doc.addObject("PartDesign::Body", "Body006")

sketch7 = body7.newObject("Sketcher::SketchObject", "Sketch006")
sketch7.Placement = App.Placement(V(6096, 4891.698574, 0), App.Rotation(V(0.62585665, 0.779938109, 0), V(0, 0, 1), V(0.779938109, -0.62585665, 0), "ZXY"))
sketch7.addGeometry(Part.LineSegment(V(-33, -45, 0), V(33, -45, 0)), False)
sketch7.addGeometry(Part.ArcOfCircle(Part.Circle(V(33, -33, 0), V(0, 0, 1), 13), math.radians(-90), math.radians(0)), False)
sketch7.addGeometry(Part.LineSegment(V(45, -33, 0), V(45, 33, 0)), False)
sketch7.addGeometry(Part.ArcOfCircle(Part.Circle(V(33, 33, 0), V(0, 0, 1), 13), math.radians(0), math.radians(90)), False)
sketch7.addGeometry(Part.LineSegment(V(33, 45, 0), V(-33, 45, 0)), False)
sketch7.addGeometry(Part.ArcOfCircle(Part.Circle(V(-33, 33, 0), V(0, 0, 1), 13), math.radians(90), math.radians(180)), False)
sketch7.addGeometry(Part.LineSegment(V(-45, 33, 0), V(-45, -33, 0)), False)
sketch7.addGeometry(Part.ArcOfCircle(Part.Circle(V(-33, -33, 0), V(0, 0, 1), 13), math.radians(180), math.radians(270)), False)
sketch7.addGeometry(Part.LineSegment(V(33, -39, 0), V(-33, -39, 0)), False)
sketch7.addGeometry(Part.ArcOfCircle(Part.Circle(V(-33, -33, 0), V(0, 0, 1), 6), math.radians(180), math.radians(270)), False)
sketch7.addGeometry(Part.LineSegment(V(-39, -33, 0), V(-39, 33, 0)), False)
sketch7.addGeometry(Part.ArcOfCircle(Part.Circle(V(-33, 33, 0), V(0, 0, 1), 6), math.radians(90), math.radians(180)), False)
sketch7.addGeometry(Part.LineSegment(V(-33, 39, 0), V(33, 39, 0)), False)
sketch7.addGeometry(Part.ArcOfCircle(Part.Circle(V(33, 33, 0), V(0, 0, 1), 6), math.radians(0), math.radians(90)), False)
sketch7.addGeometry(Part.LineSegment(V(39, 33, 0), V(39, -33, 0)), False)
sketch7.addGeometry(Part.ArcOfCircle(Part.Circle(V(33, -33, 0), V(0, 0, 1), 6), math.radians(-90), math.radians(0)), False)
sketch7.addConstraint(Sketcher.Constraint("Tangent", 0, 2, 1, 1))
sketch7.addConstraint(Sketcher.Constraint("Tangent", 1, 2, 2, 1))
sketch7.addConstraint(Sketcher.Constraint("Tangent", 2, 2, 3, 1))
sketch7.addConstraint(Sketcher.Constraint("Tangent", 3, 2, 4, 1))
sketch7.addConstraint(Sketcher.Constraint("Tangent", 4, 2, 5, 1))
sketch7.addConstraint(Sketcher.Constraint("Tangent", 5, 2, 6, 1))
sketch7.addConstraint(Sketcher.Constraint("Tangent", 6, 2, 7, 1))
sketch7.addConstraint(Sketcher.Constraint("Tangent", 7, 2, 0, 1))
sketch7.addConstraint(Sketcher.Constraint("Tangent", 8, 2, 9, 2))
sketch7.addConstraint(Sketcher.Constraint("Tangent", 9, 1, 10, 1))
sketch7.addConstraint(Sketcher.Constraint("Tangent", 10, 2, 11, 2))
sketch7.addConstraint(Sketcher.Constraint("Tangent", 11, 1, 12, 1))
sketch7.addConstraint(Sketcher.Constraint("Tangent", 12, 2, 13, 2))
sketch7.addConstraint(Sketcher.Constraint("Tangent", 13, 1, 14, 1))
sketch7.addConstraint(Sketcher.Constraint("Tangent", 14, 2, 15, 2))
sketch7.addConstraint(Sketcher.Constraint("Tangent", 15, 1, 8, 1))
sketch7.addConstraint(Sketcher.Constraint("Horizontal", 0))
sketch7.addConstraint(Sketcher.Constraint("Vertical", 2))
sketch7.addConstraint(Sketcher.Constraint("Horizontal", 4))
sketch7.addConstraint(Sketcher.Constraint("Vertical", 6))
sketch7.addConstraint(Sketcher.Constraint("Horizontal", 8))
sketch7.addConstraint(Sketcher.Constraint("Vertical", 10))
sketch7.addConstraint(Sketcher.Constraint("Horizontal", 12))
sketch7.addConstraint(Sketcher.Constraint("Vertical", 14))
sketch7.addConstraint(Sketcher.Constraint("Coincident", 9, 3, 7, 3))
sketch7.addConstraint(Sketcher.Constraint("Coincident", 11, 3, 5, 3))
sketch7.addConstraint(Sketcher.Constraint("Coincident", 13, 3, 3, 3))
sketch7.addConstraint(Sketcher.Constraint("Equal", 1, 3))
sketch7.addConstraint(Sketcher.Constraint("Equal", 3, 5))
sketch7.addConstraint(Sketcher.Constraint("Equal", 5, 7))
sketch7.addConstraint(Sketcher.Constraint("Equal", 13, 15))
sketch7.addConstraint(Sketcher.Constraint("Symmetric", 1, 3, 5, 3, -1, 1))
sketch7.addConstraint(Sketcher.Constraint("Equal", 12, 2))
sketch7.addConstraint(Sketcher.Constraint("Radius", 1, Q("0.5 in")))
sketch7.addConstraint(Sketcher.Constraint("Radius", 9, Q("0.25 in")))
sketch7.addConstraint(Sketcher.Constraint("DistanceX", 0, 1, 0, 2, Q("2.568 in")))
pad7 = body7.newObject("PartDesign::Pad", "Pad006")
pad7.Profile = sketch7
pad7.Length = 7816.004794

doc.recompute()
